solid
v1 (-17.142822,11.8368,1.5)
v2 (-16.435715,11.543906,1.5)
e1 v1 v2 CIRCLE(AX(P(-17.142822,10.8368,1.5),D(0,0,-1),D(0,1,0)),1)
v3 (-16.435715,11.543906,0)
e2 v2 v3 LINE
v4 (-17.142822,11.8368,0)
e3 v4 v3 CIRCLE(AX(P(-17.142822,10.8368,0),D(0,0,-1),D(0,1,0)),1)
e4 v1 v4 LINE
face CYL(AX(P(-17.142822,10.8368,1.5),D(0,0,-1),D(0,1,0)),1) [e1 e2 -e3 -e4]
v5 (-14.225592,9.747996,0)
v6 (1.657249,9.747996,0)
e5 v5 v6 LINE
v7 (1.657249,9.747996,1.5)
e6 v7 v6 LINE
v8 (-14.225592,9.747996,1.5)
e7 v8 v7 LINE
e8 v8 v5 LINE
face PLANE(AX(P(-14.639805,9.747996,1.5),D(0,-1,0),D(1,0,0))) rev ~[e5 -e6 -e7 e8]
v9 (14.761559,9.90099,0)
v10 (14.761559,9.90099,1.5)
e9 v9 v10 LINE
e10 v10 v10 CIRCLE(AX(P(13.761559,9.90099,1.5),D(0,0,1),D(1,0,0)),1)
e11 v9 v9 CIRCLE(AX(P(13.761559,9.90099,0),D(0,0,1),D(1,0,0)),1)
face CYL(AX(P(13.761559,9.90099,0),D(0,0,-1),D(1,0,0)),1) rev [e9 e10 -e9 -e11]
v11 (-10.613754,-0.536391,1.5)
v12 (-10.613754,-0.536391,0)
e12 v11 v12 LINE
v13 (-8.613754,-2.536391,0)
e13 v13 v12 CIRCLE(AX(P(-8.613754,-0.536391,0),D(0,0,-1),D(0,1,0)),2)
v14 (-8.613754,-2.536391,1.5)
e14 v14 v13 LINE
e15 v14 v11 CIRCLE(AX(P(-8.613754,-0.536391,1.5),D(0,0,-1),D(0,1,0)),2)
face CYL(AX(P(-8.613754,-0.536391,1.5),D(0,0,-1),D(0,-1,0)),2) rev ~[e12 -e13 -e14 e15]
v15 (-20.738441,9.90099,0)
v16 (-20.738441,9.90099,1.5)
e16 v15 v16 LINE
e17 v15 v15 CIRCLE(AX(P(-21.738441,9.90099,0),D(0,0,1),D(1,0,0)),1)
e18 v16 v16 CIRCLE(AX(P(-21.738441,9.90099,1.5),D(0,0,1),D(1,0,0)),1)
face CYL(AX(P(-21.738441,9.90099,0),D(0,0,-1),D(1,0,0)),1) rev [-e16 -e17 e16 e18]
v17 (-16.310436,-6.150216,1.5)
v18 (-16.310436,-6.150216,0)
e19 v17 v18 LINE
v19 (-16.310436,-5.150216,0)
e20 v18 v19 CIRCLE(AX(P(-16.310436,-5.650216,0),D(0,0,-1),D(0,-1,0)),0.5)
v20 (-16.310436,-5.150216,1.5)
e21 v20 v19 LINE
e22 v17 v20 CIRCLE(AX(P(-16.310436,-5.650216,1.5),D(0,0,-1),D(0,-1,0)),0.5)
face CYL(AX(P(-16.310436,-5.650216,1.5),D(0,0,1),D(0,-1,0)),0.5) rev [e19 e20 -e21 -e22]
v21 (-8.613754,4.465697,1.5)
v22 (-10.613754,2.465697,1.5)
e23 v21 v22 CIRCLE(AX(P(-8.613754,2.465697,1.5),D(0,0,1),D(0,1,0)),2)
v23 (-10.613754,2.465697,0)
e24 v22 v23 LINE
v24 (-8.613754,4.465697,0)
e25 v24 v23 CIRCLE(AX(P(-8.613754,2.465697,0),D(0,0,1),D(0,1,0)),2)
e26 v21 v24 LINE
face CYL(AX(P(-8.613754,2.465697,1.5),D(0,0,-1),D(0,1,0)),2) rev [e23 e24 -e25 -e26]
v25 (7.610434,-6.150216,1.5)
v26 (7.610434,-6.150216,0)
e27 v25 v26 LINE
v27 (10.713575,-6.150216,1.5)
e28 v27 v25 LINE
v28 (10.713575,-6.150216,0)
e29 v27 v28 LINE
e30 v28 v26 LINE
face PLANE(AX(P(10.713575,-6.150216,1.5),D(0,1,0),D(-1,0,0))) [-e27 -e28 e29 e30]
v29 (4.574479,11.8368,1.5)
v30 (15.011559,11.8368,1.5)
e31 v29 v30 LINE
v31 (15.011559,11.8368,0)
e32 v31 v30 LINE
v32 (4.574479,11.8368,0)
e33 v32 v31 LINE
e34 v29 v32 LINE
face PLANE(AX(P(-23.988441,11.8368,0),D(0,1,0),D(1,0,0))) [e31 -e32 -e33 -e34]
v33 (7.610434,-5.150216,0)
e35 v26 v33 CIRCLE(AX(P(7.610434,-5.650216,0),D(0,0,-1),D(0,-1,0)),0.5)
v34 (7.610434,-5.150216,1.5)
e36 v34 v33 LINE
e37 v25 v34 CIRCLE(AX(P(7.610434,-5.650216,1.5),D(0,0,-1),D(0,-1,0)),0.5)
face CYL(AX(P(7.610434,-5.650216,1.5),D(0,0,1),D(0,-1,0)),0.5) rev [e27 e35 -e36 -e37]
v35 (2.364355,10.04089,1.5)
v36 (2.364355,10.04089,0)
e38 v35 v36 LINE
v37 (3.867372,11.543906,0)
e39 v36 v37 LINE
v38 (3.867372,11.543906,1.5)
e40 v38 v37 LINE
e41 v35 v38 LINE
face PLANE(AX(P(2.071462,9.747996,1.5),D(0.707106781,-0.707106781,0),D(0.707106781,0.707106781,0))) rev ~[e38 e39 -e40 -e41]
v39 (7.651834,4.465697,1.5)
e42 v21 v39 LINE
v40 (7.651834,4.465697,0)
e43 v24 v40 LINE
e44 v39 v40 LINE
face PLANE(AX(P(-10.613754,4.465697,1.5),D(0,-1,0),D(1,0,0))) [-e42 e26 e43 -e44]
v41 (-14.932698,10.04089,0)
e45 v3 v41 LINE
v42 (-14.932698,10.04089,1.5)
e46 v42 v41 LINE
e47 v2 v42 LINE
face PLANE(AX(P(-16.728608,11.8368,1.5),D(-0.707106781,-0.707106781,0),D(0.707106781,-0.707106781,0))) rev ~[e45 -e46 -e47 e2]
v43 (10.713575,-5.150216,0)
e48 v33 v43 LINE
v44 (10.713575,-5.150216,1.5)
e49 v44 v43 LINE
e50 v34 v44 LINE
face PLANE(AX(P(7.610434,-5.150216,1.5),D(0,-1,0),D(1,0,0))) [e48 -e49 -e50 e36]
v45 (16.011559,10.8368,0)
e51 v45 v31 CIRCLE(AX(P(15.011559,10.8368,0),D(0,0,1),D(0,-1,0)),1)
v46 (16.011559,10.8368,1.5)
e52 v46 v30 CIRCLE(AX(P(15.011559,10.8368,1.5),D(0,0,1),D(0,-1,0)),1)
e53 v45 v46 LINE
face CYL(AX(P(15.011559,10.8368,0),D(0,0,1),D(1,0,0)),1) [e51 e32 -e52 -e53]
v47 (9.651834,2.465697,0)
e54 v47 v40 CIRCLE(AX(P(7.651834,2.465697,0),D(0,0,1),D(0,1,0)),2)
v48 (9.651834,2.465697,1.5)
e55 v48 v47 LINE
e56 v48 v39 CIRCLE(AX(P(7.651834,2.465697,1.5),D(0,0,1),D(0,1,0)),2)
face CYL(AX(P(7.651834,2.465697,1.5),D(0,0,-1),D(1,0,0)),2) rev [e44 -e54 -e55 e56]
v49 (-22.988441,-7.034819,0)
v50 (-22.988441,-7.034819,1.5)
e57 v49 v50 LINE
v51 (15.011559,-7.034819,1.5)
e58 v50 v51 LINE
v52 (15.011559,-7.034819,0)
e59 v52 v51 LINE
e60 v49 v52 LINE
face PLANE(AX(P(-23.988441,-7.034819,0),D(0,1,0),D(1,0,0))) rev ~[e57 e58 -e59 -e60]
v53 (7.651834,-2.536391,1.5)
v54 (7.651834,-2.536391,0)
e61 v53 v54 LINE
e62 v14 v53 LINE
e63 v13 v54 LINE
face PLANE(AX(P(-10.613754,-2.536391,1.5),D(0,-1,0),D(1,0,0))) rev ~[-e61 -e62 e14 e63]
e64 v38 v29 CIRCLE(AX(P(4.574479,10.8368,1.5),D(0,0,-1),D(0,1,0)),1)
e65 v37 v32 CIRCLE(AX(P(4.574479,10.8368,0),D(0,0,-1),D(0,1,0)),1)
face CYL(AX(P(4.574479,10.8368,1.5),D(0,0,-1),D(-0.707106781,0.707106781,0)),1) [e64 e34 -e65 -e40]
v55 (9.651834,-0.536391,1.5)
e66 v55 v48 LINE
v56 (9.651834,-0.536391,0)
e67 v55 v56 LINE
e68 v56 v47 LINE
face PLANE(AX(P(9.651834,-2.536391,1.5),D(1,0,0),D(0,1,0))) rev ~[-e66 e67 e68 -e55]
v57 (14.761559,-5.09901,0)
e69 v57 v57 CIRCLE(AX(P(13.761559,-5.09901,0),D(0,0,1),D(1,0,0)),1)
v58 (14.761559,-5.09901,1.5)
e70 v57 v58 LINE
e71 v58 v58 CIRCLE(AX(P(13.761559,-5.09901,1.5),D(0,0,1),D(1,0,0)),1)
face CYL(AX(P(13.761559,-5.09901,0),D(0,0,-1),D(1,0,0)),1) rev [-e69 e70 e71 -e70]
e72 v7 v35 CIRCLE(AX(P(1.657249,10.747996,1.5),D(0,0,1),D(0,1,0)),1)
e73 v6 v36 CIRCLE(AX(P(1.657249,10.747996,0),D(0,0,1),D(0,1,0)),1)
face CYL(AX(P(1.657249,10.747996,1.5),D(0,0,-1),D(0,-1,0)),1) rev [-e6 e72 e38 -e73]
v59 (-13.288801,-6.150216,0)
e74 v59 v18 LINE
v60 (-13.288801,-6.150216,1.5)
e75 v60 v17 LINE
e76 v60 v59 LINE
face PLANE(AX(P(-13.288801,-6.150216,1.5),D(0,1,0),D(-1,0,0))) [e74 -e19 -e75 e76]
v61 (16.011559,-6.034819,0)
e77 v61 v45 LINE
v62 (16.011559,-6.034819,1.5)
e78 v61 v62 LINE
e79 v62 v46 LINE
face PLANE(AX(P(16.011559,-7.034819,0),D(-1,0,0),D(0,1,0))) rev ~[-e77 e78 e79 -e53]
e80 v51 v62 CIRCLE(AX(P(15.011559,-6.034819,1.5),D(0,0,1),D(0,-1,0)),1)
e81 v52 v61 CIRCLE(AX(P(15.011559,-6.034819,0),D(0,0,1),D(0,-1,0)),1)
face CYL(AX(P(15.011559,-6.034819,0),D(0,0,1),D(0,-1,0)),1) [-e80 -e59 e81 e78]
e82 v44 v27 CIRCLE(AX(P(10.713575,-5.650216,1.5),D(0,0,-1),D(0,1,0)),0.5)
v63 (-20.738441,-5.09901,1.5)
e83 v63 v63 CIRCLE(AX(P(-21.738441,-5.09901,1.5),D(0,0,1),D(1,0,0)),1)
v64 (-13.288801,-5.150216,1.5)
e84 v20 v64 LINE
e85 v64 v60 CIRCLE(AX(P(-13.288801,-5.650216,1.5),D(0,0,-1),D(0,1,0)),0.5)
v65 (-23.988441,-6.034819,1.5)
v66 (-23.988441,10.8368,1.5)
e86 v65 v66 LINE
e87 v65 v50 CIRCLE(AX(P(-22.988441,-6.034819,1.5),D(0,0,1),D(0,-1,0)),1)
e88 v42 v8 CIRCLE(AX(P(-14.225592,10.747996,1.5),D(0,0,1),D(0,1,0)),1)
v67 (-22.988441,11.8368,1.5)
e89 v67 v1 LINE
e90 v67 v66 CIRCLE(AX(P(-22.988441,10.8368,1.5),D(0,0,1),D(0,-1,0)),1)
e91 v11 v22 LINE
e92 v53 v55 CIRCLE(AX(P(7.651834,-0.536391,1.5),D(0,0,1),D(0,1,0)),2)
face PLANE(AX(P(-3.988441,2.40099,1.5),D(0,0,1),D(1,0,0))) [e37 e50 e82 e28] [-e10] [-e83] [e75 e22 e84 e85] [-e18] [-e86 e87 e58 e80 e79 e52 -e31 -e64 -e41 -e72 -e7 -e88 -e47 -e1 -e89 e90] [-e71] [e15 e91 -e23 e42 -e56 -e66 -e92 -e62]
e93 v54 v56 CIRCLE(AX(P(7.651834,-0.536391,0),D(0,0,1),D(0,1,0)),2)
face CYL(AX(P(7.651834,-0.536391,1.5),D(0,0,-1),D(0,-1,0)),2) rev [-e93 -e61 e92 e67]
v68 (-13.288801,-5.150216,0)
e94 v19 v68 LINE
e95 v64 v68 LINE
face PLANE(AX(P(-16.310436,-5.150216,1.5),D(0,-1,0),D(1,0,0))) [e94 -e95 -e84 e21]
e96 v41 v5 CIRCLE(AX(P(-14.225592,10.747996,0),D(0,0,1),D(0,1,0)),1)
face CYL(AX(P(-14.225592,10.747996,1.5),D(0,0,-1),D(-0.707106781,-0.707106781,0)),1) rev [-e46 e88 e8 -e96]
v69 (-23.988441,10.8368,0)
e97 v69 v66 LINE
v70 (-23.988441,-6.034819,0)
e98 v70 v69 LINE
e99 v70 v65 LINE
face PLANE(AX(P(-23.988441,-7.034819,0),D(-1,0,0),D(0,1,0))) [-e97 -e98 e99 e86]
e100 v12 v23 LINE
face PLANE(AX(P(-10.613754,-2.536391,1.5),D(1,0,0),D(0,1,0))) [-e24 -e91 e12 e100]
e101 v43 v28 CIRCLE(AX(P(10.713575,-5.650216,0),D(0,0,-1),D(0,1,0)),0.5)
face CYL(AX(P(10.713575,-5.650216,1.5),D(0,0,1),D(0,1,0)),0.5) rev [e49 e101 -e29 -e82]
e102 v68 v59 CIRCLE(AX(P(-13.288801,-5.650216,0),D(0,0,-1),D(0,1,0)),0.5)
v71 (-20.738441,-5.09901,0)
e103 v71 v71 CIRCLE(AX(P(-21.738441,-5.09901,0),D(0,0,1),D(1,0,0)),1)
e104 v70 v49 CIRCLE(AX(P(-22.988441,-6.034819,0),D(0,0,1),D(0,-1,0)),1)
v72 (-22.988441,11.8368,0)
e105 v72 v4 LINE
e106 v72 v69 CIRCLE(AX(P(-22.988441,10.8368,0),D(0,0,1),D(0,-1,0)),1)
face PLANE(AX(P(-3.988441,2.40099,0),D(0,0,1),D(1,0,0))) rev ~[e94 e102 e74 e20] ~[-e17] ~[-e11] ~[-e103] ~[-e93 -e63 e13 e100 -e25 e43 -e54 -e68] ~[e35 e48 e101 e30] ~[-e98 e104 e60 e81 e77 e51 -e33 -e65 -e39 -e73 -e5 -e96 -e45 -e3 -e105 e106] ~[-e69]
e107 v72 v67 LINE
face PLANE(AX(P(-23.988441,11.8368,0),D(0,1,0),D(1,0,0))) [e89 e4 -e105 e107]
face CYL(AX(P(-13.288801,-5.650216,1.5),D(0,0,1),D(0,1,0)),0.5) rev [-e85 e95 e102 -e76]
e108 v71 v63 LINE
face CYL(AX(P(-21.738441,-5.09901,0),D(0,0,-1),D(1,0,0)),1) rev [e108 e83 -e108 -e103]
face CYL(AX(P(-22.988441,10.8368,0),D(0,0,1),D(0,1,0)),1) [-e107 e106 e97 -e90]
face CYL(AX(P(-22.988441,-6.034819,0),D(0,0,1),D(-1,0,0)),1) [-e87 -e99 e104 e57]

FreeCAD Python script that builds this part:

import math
import FreeCAD as App
import Part
import Sketcher
Q = App.Units.Quantity


def edges_at(feature, points):
    """Names of the edges that pass closest to the given points."""
    edges = feature.Shape.Edges
    near = lambda p: min(range(len(edges)), key=lambda i: edges[i].distToShape(Part.Vertex(*p))[0])
    return sorted({f"Edge{near(p) + 1}" for p in points})


def add_polygon(sketch, points):
    """Adds a closed chain of lines whose ends are joined by coincident constraints."""
    first, n = sketch.GeometryCount, len(points)
    for a, b in zip(points, points[1:] + points[:1]):
        sketch.addGeometry(Part.LineSegment(App.Vector(*a, 0), App.Vector(*b, 0)), False)
    for i in range(n):
        sketch.addConstraint(Sketcher.Constraint("Coincident", first + i, 2, first + (i + 1) % n, 1))

doc = App.newDocument("Part")
params = doc.addObject("Spreadsheet::Sheet", "Params")
for row, (alias, value) in enumerate([
    ("sketch1_diameter", "2 mm"),
    ("sketch1_width", "40 mm"),
    ("pad1_length", "1.5 mm"),
    ("sketch2_radius", "0.5 mm"),
    ("pocket1_length", "1.5 mm"),
    ("fillet_radius", "1 mm"),
    ("fillet2_radius", "1 mm"),
    ("fillet3_radius", "2 mm"),
], start=1):
    params.set(f"A{row}", alias)
    params.set(f"B{row}", "=" + value)
    params.setAlias(f"B{row}", alias)

body = doc.addObject("PartDesign::Body", "Body")

# Sketch on XY plane
sketch1 = body.newObject("Sketcher::SketchObject", "Sketch")
sketch1.AttachmentSupport = (doc.getObject("XY_Plane"), [""])
sketch1.MapMode = "FlatFace"
add_polygon(sketch1, [(-24, 11.8), (-24, -7), (16, -7), (16, 11.8)])  # lines 0-3
sketch1.addGeometry(Part.Circle(App.Vector(-21.7, -5.1, 0), App.Vector(0, 0, 1), 1), False)  # 4
sketch1.addGeometry(Part.Circle(App.Vector(13.8, -5.1, 0), App.Vector(0, 0, 1), 1), False)  # 5
sketch1.addGeometry(Part.Circle(App.Vector(-21.7, 9.9, 0), App.Vector(0, 0, 1), 1), False)  # 6
sketch1.addGeometry(Part.Circle(App.Vector(13.8, 9.9, 0), App.Vector(0, 0, 1), 1), False)  # 7
sketch1.addConstraint(Sketcher.Constraint("Vertical", 0))
sketch1.addConstraint(Sketcher.Constraint("Horizontal", 1))
sketch1.addConstraint(Sketcher.Constraint("Vertical", 2))
sketch1.addConstraint(Sketcher.Constraint("Horizontal", 3))
sketch1.addConstraint(Sketcher.Constraint("Equal", 4, 5))
sketch1.addConstraint(Sketcher.Constraint("Equal", 5, 6))
sketch1.addConstraint(Sketcher.Constraint("Equal", 6, 7))
sketch1.addConstraint(Sketcher.Constraint("Horizontal", 4, 3, 5, 3))
sketch1.addConstraint(Sketcher.Constraint("Horizontal", 6, 3, 7, 3))
sketch1.addConstraint(Sketcher.Constraint("Vertical", 4, 3, 6, 3))
sketch1.addConstraint(Sketcher.Constraint("Vertical", 5, 3, 7, 3))
sketch1.addConstraint(Sketcher.Constraint("Diameter", 4, Q("2 mm")))
sketch1.addConstraint(Sketcher.Constraint("DistanceX", 1, 1, 1, 2, Q("40 mm")))
sketch1.addConstraint(Sketcher.Constraint("DistanceY", 4, 3, 6, 3, Q("15 mm")))
sketch1.addConstraint(Sketcher.Constraint("DistanceX", 4, 3, 5, 3, Q("35.5 mm")))
sketch1.addConstraint(Sketcher.Constraint("DistanceX", 0, 2, 4, 3, Q("2.25 mm")))
sketch1.addConstraint(Sketcher.Constraint("DistanceY", 0, 2, 0, 1, Q("18.871619 mm")))
sketch1.addConstraint(Sketcher.Constraint("DistanceY", -1, 1, 2, 2, Q("11.8368 mm")))
sketch1.addConstraint(Sketcher.Constraint("DistanceX", 4, 3, -1, 1, Q("21.738441 mm")))
sketch1.addConstraint(Sketcher.Constraint("DistanceY", 4, 3, -1, 1, Q("5.09901 mm")))
sketch1.setExpression("Constraints[15]", "Params.sketch1_diameter")
sketch1.setExpression("Constraints[16]", "Params.sketch1_width")
pad1 = body.newObject("PartDesign::Pad", "Pad")
pad1.Profile = sketch1
pad1.setExpression("Length", "Params.pad1_length")

# Sketch on XY plane
sketch2 = body.newObject("Sketcher::SketchObject", "Sketch001")
sketch2.AttachmentSupport = (doc.getObject("XY_Plane"), [""])
sketch2.MapMode = "FlatFace"
sketch2.AttachmentOffset = App.Placement(App.Vector(0, 0, 1.5), App.Rotation())
add_polygon(sketch2, [(-16.7, 11.8), (-14.6, 9.7), (2.1, 9.7), (5.5, 13.2), (-14.9, 13.2)])  # lines 0-4
add_polygon(sketch2, [(-10.6, 4.5), (-10.6, -2.5), (9.7, -2.5), (9.7, 4.5)])  # lines 5-8
sketch2.addGeometry(Part.LineSegment(App.Vector(-13.3, -5.2, 0), App.Vector(-16.3, -5.2, 0)), False)  # 9
sketch2.addGeometry(Part.ArcOfCircle(Part.Circle(App.Vector(-16.3, -5.7, 0), App.Vector(0, 0, 1), 0.5), math.radians(90), math.radians(270)), False)  # 10
sketch2.addGeometry(Part.LineSegment(App.Vector(-16.3, -6.2, 0), App.Vector(-13.3, -6.2, 0)), False)  # 11
sketch2.addGeometry(Part.ArcOfCircle(Part.Circle(App.Vector(-13.3, -5.7, 0), App.Vector(0, 0, 1), 0.5), math.radians(-90), math.radians(90)), False)  # 12
sketch2.addGeometry(Part.LineSegment(App.Vector(10.7, -5.2, 0), App.Vector(7.6, -5.2, 0)), False)  # 13
sketch2.addGeometry(Part.ArcOfCircle(Part.Circle(App.Vector(7.6, -5.7, 0), App.Vector(0, 0, 1), 0.5), math.radians(90), math.radians(270)), False)  # 14
sketch2.addGeometry(Part.LineSegment(App.Vector(7.6, -6.2, 0), App.Vector(10.7, -6.2, 0)), False)  # 15
sketch2.addGeometry(Part.ArcOfCircle(Part.Circle(App.Vector(10.7, -5.7, 0), App.Vector(0, 0, 1), 0.5), math.radians(-90), math.radians(90)), False)  # 16
sketch2.addConstraint(Sketcher.Constraint("Tangent", 9, 2, 10, 1))
sketch2.addConstraint(Sketcher.Constraint("Tangent", 10, 2, 11, 1))
sketch2.addConstraint(Sketcher.Constraint("Tangent", 11, 2, 12, 1))
sketch2.addConstraint(Sketcher.Constraint("Tangent", 12, 2, 9, 1))
sketch2.addConstraint(Sketcher.Constraint("Tangent", 13, 2, 14, 1))
sketch2.addConstraint(Sketcher.Constraint("Tangent", 14, 2, 15, 1))
sketch2.addConstraint(Sketcher.Constraint("Tangent", 15, 2, 16, 1))
sketch2.addConstraint(Sketcher.Constraint("Tangent", 16, 2, 13, 1))
sketch2.addConstraint(Sketcher.Constraint("Horizontal", 1))
sketch2.addConstraint(Sketcher.Constraint("Horizontal", 3))
sketch2.addConstraint(Sketcher.Constraint("Vertical", 5))
sketch2.addConstraint(Sketcher.Constraint("Horizontal", 6))
sketch2.addConstraint(Sketcher.Constraint("Vertical", 7))
sketch2.addConstraint(Sketcher.Constraint("Horizontal", 8))
sketch2.addConstraint(Sketcher.Constraint("Horizontal", 9))
sketch2.addConstraint(Sketcher.Constraint("Horizontal", 11))
sketch2.addConstraint(Sketcher.Constraint("Horizontal", 13))
sketch2.addConstraint(Sketcher.Constraint("Horizontal", 15))
sketch2.addConstraint(Sketcher.Constraint("Equal", 12, 14))
sketch2.addConstraint(Sketcher.Constraint("Perpendicular", 0, 2))
sketch2.addConstraint(Sketcher.Constraint("Horizontal", 12, 3, 14, 3))
sketch2.addConstraint(Sketcher.Constraint("Radius", 10, Q("0.5 mm")))
sketch2.addConstraint(Sketcher.Constraint("Angle", 0, Q("-45 deg")))
sketch2.addConstraint(Sketcher.Constraint("Distance", 2, Q("4.8766 mm")))
sketch2.addConstraint(Sketcher.Constraint("DistanceX", 3, 2, 3, 1, Q("20.39159 mm")))
sketch2.addConstraint(Sketcher.Constraint("DistanceX", 6, 1, 6, 2, Q("20.265588 mm")))
sketch2.addConstraint(Sketcher.Constraint("DistanceX", 13, 2, 13, 1, Q("3.103141 mm")))
sketch2.addConstraint(Sketcher.Constraint("DistanceY", 5, 2, 5, 1, Q("7.002088 mm")))
sketch2.addConstraint(Sketcher.Constraint("DistanceX", 12, 3, -1, 1, Q("13.288801 mm")))
sketch2.addConstraint(Sketcher.Constraint("DistanceY", -1, 1, 4, 2, Q("11.8368 mm")))
sketch2.addConstraint(Sketcher.Constraint("DistanceX", 14, 3, 6, 2, Q("2.041399 mm")))
sketch2.addConstraint(Sketcher.Constraint("DistanceY", 7, 2, 1, 2, Q("5.282299 mm")))
sketch2.addConstraint(Sketcher.Constraint("DistanceX", 1, 1, 1, 2, Q("16.711267 mm")))
sketch2.addConstraint(Sketcher.Constraint("DistanceX", 9, 2, 9, 1, Q("3.021634 mm")))
sketch2.addConstraint(Sketcher.Constraint("DistanceX", -1, 1, 2, 2, Q("5.519739 mm")))
sketch2.addConstraint(Sketcher.Constraint("DistanceX", 4, 2, -1, 1, Q("16.728608 mm")))
sketch2.addConstraint(Sketcher.Constraint("DistanceX", 10, 3, 14, 3, Q("23.92087 mm")))
sketch2.addConstraint(Sketcher.Constraint("DistanceY", 12, 3, 0, 2, Q("15.398212 mm")))
sketch2.setExpression("Constraints[30]", "Params.sketch2_radius")
pocket1 = body.newObject("PartDesign::Pocket", "Pocket")
pocket1.Profile = sketch2
pocket1.setExpression("Length", "Params.pocket1_length")
doc.recompute()

fillet = body.newObject("PartDesign::Fillet", "Fillet")
fillet.Base = (pocket1, edges_at(pocket1, [
    (4.16, 11.837, 0.75),
    (-16.729, 11.837, 0.75),
    (2.071, 9.748, 0.75),
    (-14.64, 9.748, 0.75),
]))
fillet.setExpression("Radius", "Params.fillet_radius")
doc.recompute()

fillet2 = body.newObject("PartDesign::Fillet", "Fillet001")
fillet2.Base = (fillet, edges_at(fillet, [
    (16.012, -7.035, 0.75),
    (-23.988, -7.035, 0.75),
    (-23.988, 11.837, 0.75),
    (16.012, 11.837, 0.75),
]))
fillet2.setExpression("Radius", "Params.fillet2_radius")
doc.recompute()

fillet3 = body.newObject("PartDesign::Fillet", "Fillet002")
fillet3.Base = (fillet2, edges_at(fillet2, [
    (9.652, 4.466, 0.75),
    (9.652, -2.536, 0.75),
    (-10.614, -2.536, 0.75),
    (-10.614, 4.466, 0.75),
]))
fillet3.setExpression("Radius", "Params.fillet3_radius")

doc.recompute()
